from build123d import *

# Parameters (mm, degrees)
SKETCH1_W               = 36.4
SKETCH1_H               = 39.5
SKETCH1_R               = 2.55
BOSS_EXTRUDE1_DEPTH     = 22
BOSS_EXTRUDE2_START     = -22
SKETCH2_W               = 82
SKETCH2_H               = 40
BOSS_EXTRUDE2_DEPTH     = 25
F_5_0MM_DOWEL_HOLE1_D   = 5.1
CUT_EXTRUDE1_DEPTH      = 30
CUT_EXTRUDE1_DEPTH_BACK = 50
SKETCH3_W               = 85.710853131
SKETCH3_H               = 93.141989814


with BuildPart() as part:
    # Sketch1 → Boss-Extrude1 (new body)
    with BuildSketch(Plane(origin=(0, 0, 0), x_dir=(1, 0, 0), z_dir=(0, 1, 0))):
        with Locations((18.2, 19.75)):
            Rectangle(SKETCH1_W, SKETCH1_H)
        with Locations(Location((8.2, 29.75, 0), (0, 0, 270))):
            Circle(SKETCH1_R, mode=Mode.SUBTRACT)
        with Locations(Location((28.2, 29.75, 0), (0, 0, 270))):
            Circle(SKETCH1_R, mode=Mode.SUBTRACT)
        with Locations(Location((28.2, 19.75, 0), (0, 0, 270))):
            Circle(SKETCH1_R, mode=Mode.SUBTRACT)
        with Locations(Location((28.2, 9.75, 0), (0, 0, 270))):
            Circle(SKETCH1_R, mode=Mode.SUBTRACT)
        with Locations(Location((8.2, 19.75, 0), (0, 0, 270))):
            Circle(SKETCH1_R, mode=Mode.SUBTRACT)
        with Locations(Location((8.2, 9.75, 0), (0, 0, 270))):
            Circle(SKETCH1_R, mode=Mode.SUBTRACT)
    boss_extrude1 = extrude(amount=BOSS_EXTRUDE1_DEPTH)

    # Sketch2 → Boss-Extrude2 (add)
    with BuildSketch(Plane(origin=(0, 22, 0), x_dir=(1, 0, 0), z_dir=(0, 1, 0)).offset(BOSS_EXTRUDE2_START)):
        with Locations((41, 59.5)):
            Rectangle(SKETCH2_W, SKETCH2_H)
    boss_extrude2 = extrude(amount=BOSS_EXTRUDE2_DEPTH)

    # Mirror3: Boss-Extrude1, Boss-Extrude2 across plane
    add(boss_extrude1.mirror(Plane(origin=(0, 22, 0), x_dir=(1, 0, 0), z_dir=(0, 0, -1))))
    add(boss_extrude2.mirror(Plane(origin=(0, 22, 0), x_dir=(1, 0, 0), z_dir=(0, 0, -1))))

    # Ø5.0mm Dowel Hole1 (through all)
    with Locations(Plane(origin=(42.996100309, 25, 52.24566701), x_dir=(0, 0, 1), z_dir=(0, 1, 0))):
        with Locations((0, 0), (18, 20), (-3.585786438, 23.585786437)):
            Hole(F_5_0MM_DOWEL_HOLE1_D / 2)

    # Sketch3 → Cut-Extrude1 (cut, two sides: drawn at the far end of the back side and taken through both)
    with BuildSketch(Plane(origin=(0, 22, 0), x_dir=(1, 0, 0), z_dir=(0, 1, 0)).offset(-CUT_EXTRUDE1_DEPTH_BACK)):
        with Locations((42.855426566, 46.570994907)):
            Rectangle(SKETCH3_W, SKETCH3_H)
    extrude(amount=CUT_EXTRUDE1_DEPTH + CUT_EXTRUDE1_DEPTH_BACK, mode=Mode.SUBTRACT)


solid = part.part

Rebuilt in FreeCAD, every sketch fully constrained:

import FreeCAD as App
import Part
import Sketcher


def add_polygon(sketch, points):
    """Adds a closed chain of lines whose ends are joined by coincident constraints."""
    first, n = sketch.GeometryCount, len(points)
    for a, b in zip(points, points[1:] + points[:1]):
        sketch.addGeometry(Part.LineSegment(App.Vector(*a, 0), App.Vector(*b, 0)), False)
    for i in range(n):
        sketch.addConstraint(Sketcher.Constraint("Coincident", first + i, 2, first + (i + 1) % n, 1))

doc = App.newDocument("Part")
body = doc.addObject("PartDesign::Body", "Body")

sketch1 = doc.addObject("Sketcher::SketchObject", "Sketch")
body.addObject(sketch1)
sketch1.AttachmentSupport = (doc.XZ_Plane, [""])
sketch1.MapMode = "FlatFace"
add_polygon(sketch1, [(0, -39.5), (0, 0), (36.4, 0), (36.4, -39.5)])
sketch1.addGeometry(Part.Circle(App.Vector(8.2, -9.75, 0), App.Vector(0, 0, 1), 2.55), False)
sketch1.addGeometry(Part.Circle(App.Vector(28.2, -9.75, 0), App.Vector(0, 0, 1), 2.55), False)
sketch1.addGeometry(Part.Circle(App.Vector(8.2, -19.75, 0), App.Vector(0, 0, 1), 2.55), False)
sketch1.addGeometry(Part.Circle(App.Vector(8.2, -29.75, 0), App.Vector(0, 0, 1), 2.55), False)
sketch1.addGeometry(Part.Circle(App.Vector(28.2, -19.75, 0), App.Vector(0, 0, 1), 2.55), False)
sketch1.addGeometry(Part.Circle(App.Vector(28.2, -29.75, 0), App.Vector(0, 0, 1), 2.55), False)
sketch1.addConstraint([
    Sketcher.Constraint("Vertical", 0),
    Sketcher.Constraint("Horizontal", 1),
    Sketcher.Constraint("Vertical", 2),
    Sketcher.Constraint("Horizontal", 3),
    Sketcher.Constraint("Coincident", 0, 2, -1, 1),
    Sketcher.Constraint("Equal", 4, 5),
    Sketcher.Constraint("Equal", 5, 6),
    Sketcher.Constraint("Equal", 6, 7),
    Sketcher.Constraint("Equal", 7, 8),
    Sketcher.Constraint("Equal", 8, 9),
    Sketcher.Constraint("Horizontal", 4, 3, 5, 3),
    Sketcher.Constraint("Horizontal", 6, 3, 8, 3),
    Sketcher.Constraint("Horizontal", 7, 3, 9, 3),
    Sketcher.Constraint("Vertical", 4, 3, 6, 3),
    Sketcher.Constraint("Vertical", 6, 3, 7, 3),
    Sketcher.Constraint("Vertical", 5, 3, 8, 3),
    Sketcher.Constraint("Vertical", 8, 3, 9, 3),
    Sketcher.Constraint("Diameter", 4, 5.1),
    Sketcher.Constraint("DistanceX", 1, 1, 1, 2, 36.4),
    Sketcher.Constraint("DistanceY", 0, 1, 0, 2, 39.5),
    Sketcher.Constraint("DistanceX", 4, 3, 5, 3, 20.0),
    Sketcher.Constraint("DistanceY", 6, 3, 4, 3, 10.0),
    Sketcher.Constraint("DistanceY", 7, 3, 6, 3, 10.0),
    Sketcher.Constraint("DistanceX", -1, 1, 4, 3, 8.2),
    Sketcher.Constraint("DistanceY", 4, 3, -1, 1, 9.75),
])
pad1 = doc.addObject("PartDesign::Pad", "Pad")
body.addObject(pad1)
pad1.Profile = sketch1
pad1.Length = 22
pad1.Reversed = True

sketch2 = doc.addObject("Sketcher::SketchObject", "Sketch001")
body.addObject(sketch2)
sketch2.AttachmentSupport = (doc.XZ_Plane, [""])
sketch2.MapMode = "FlatFace"
add_polygon(sketch2, [(0, -79.5), (0, -39.5), (82, -39.5), (82, -79.5)])
sketch2.addConstraint([
    Sketcher.Constraint("Vertical", 0),
    Sketcher.Constraint("Horizontal", 1),
    Sketcher.Constraint("Vertical", 2),
    Sketcher.Constraint("Horizontal", 3),
    Sketcher.Constraint("PointOnObject", 0, 2, -2),
    Sketcher.Constraint("DistanceX", 1, 1, 1, 2, 82.0),
    Sketcher.Constraint("DistanceY", 0, 1, 0, 2, 40.0),
    Sketcher.Constraint("DistanceY", 0, 2, -1, 1, 39.5),
])
pad2 = doc.addObject("PartDesign::Pad", "Pad001")
body.addObject(pad2)
pad2.Profile = sketch2
pad2.Length = 25
pad2.Reversed = True
doc.recompute()

mirrored = doc.addObject("PartDesign::Mirrored", "Mirrored")
body.addObject(mirrored)
mirrored.Originals = [pad1, pad2]
mirrored.MirrorPlane = (doc.XY_Plane, [""])
body.Tip = mirrored

sketch3 = doc.addObject("Sketcher::SketchObject", "Sketch002")
body.addObject(sketch3)
sketch3.AttachmentSupport = (doc.XZ_Plane, [""])
sketch3.MapMode = "FlatFace"
sketch3.AttachmentOffset = App.Placement(App.Vector(0, 0, -25), App.Rotation())
sketch3.addGeometry([
    Part.Circle(App.Vector(42.9961, 52.245667, 0), App.Vector(0, 0, 1), 2.55),
    Part.Circle(App.Vector(62.9961, 70.245667, 0), App.Vector(0, 0, 1), 2.55),
    Part.Circle(App.Vector(66.581887, 48.659881, 0), App.Vector(0, 0, 1), 2.55),
], False)
sketch3.addConstraint([
    Sketcher.Constraint("Equal", 0, 1),
    Sketcher.Constraint("Equal", 1, 2),
    Sketcher.Constraint("Diameter", 0, 5.1),
    Sketcher.Constraint("DistanceX", 0, 3, 1, 3, 20.0),
    Sketcher.Constraint("DistanceY", 0, 3, 1, 3, 18.0),
    Sketcher.Constraint("DistanceX", -1, 1, 0, 3, 42.9961),
    Sketcher.Constraint("DistanceY", -1, 1, 2, 3, 48.659881),
    Sketcher.Constraint("DistanceY", -1, 1, 0, 3, 52.245667),
    Sketcher.Constraint("DistanceX", -1, 1, 2, 3, 66.581887),
])
doc.recompute()
hole = doc.addObject("PartDesign::Hole", "Hole")
body.addObject(hole)
hole.Profile = sketch3
hole.ThreadType = "None"
hole.Diameter = 5.1
hole.DepthType = "ThroughAll"
hole.Reversed = True

sketch4 = doc.addObject("Sketcher::SketchObject", "Sketch003")
body.addObject(sketch4)
sketch4.AttachmentSupport = (doc.XZ_Plane, [""])
sketch4.MapMode = "FlatFace"
sketch4.AttachmentOffset = App.Placement(App.Vector(0, 0, -22), App.Rotation())
add_polygon(sketch4, [(0, -93.14199), (0, 0), (85.710853, 0), (85.710853, -93.14199)])
sketch4.addConstraint([
    Sketcher.Constraint("Vertical", 0),
    Sketcher.Constraint("Horizontal", 1),
    Sketcher.Constraint("Vertical", 2),
    Sketcher.Constraint("Horizontal", 3),
    Sketcher.Constraint("Coincident", 0, 2, -1, 1),
    Sketcher.Constraint("DistanceY", 0, 1, 0, 2, 93.14199),
    Sketcher.Constraint("DistanceX", 1, 1, 1, 2, 85.710853),
])
pocket1 = doc.addObject("PartDesign::Pocket", "Pocket")
body.addObject(pocket1)
pocket1.Profile = sketch4
pocket1.Type = "ThroughAll"
pocket1.Midplane = True

doc.recompute()
